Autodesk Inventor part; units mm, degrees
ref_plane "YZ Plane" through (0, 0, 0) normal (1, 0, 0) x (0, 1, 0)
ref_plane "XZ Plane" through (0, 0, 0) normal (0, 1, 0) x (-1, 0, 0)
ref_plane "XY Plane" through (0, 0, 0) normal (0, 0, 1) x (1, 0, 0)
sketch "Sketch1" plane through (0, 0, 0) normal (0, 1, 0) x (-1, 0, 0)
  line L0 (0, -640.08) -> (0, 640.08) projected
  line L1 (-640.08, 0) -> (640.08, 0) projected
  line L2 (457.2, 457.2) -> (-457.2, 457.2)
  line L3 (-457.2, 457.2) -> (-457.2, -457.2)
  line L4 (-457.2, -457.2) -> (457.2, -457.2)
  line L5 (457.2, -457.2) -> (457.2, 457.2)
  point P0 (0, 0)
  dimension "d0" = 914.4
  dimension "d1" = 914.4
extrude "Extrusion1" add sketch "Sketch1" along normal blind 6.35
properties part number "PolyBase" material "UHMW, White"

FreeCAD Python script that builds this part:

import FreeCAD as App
import Part
import Sketcher

V = App.Vector
Q = App.Units.Quantity


def add_polygon(sketch, points):
    """Adds a closed chain of lines whose ends are joined by coincident constraints."""
    first, n = sketch.GeometryCount, len(points)
    for a, b in zip(points, points[1:] + points[:1]):
        sketch.addGeometry(Part.LineSegment(App.Vector(*a, 0), App.Vector(*b, 0)), False)
    for i in range(n):
        sketch.addConstraint(Sketcher.Constraint("Coincident", first + i, 2, first + (i + 1) % n, 1))

doc = App.newDocument("Part")
body = doc.addObject("PartDesign::Body", "Body")

sketch1 = body.newObject("Sketcher::SketchObject", "Sketch")
sketch1.AttachmentSupport = (doc.getObject("XZ_Plane"), [""])
sketch1.MapMode = "FlatFace"
add_polygon(sketch1, [(457.2, -457.2), (-457.2, -457.2), (-457.2, 457.2), (457.2, 457.2)])
sketch1.addConstraint([
    Sketcher.Constraint("Horizontal", 0),
    Sketcher.Constraint("Vertical", 1),
    Sketcher.Constraint("Horizontal", 2),
    Sketcher.Constraint("Vertical", 3),
    Sketcher.Constraint("Symmetric", 0, 2, 2, 2, -1, 1),
    Sketcher.Constraint("Equal", 2, 1),
    Sketcher.Constraint("DistanceX", 0, 2, 0, 1, Q("36 in")),
])
pad1 = body.newObject("PartDesign::Pad", "Pad")
pad1.Profile = sketch1
pad1.Length = Q("0.25 in")
pad1.Reversed = True

doc.recompute()
